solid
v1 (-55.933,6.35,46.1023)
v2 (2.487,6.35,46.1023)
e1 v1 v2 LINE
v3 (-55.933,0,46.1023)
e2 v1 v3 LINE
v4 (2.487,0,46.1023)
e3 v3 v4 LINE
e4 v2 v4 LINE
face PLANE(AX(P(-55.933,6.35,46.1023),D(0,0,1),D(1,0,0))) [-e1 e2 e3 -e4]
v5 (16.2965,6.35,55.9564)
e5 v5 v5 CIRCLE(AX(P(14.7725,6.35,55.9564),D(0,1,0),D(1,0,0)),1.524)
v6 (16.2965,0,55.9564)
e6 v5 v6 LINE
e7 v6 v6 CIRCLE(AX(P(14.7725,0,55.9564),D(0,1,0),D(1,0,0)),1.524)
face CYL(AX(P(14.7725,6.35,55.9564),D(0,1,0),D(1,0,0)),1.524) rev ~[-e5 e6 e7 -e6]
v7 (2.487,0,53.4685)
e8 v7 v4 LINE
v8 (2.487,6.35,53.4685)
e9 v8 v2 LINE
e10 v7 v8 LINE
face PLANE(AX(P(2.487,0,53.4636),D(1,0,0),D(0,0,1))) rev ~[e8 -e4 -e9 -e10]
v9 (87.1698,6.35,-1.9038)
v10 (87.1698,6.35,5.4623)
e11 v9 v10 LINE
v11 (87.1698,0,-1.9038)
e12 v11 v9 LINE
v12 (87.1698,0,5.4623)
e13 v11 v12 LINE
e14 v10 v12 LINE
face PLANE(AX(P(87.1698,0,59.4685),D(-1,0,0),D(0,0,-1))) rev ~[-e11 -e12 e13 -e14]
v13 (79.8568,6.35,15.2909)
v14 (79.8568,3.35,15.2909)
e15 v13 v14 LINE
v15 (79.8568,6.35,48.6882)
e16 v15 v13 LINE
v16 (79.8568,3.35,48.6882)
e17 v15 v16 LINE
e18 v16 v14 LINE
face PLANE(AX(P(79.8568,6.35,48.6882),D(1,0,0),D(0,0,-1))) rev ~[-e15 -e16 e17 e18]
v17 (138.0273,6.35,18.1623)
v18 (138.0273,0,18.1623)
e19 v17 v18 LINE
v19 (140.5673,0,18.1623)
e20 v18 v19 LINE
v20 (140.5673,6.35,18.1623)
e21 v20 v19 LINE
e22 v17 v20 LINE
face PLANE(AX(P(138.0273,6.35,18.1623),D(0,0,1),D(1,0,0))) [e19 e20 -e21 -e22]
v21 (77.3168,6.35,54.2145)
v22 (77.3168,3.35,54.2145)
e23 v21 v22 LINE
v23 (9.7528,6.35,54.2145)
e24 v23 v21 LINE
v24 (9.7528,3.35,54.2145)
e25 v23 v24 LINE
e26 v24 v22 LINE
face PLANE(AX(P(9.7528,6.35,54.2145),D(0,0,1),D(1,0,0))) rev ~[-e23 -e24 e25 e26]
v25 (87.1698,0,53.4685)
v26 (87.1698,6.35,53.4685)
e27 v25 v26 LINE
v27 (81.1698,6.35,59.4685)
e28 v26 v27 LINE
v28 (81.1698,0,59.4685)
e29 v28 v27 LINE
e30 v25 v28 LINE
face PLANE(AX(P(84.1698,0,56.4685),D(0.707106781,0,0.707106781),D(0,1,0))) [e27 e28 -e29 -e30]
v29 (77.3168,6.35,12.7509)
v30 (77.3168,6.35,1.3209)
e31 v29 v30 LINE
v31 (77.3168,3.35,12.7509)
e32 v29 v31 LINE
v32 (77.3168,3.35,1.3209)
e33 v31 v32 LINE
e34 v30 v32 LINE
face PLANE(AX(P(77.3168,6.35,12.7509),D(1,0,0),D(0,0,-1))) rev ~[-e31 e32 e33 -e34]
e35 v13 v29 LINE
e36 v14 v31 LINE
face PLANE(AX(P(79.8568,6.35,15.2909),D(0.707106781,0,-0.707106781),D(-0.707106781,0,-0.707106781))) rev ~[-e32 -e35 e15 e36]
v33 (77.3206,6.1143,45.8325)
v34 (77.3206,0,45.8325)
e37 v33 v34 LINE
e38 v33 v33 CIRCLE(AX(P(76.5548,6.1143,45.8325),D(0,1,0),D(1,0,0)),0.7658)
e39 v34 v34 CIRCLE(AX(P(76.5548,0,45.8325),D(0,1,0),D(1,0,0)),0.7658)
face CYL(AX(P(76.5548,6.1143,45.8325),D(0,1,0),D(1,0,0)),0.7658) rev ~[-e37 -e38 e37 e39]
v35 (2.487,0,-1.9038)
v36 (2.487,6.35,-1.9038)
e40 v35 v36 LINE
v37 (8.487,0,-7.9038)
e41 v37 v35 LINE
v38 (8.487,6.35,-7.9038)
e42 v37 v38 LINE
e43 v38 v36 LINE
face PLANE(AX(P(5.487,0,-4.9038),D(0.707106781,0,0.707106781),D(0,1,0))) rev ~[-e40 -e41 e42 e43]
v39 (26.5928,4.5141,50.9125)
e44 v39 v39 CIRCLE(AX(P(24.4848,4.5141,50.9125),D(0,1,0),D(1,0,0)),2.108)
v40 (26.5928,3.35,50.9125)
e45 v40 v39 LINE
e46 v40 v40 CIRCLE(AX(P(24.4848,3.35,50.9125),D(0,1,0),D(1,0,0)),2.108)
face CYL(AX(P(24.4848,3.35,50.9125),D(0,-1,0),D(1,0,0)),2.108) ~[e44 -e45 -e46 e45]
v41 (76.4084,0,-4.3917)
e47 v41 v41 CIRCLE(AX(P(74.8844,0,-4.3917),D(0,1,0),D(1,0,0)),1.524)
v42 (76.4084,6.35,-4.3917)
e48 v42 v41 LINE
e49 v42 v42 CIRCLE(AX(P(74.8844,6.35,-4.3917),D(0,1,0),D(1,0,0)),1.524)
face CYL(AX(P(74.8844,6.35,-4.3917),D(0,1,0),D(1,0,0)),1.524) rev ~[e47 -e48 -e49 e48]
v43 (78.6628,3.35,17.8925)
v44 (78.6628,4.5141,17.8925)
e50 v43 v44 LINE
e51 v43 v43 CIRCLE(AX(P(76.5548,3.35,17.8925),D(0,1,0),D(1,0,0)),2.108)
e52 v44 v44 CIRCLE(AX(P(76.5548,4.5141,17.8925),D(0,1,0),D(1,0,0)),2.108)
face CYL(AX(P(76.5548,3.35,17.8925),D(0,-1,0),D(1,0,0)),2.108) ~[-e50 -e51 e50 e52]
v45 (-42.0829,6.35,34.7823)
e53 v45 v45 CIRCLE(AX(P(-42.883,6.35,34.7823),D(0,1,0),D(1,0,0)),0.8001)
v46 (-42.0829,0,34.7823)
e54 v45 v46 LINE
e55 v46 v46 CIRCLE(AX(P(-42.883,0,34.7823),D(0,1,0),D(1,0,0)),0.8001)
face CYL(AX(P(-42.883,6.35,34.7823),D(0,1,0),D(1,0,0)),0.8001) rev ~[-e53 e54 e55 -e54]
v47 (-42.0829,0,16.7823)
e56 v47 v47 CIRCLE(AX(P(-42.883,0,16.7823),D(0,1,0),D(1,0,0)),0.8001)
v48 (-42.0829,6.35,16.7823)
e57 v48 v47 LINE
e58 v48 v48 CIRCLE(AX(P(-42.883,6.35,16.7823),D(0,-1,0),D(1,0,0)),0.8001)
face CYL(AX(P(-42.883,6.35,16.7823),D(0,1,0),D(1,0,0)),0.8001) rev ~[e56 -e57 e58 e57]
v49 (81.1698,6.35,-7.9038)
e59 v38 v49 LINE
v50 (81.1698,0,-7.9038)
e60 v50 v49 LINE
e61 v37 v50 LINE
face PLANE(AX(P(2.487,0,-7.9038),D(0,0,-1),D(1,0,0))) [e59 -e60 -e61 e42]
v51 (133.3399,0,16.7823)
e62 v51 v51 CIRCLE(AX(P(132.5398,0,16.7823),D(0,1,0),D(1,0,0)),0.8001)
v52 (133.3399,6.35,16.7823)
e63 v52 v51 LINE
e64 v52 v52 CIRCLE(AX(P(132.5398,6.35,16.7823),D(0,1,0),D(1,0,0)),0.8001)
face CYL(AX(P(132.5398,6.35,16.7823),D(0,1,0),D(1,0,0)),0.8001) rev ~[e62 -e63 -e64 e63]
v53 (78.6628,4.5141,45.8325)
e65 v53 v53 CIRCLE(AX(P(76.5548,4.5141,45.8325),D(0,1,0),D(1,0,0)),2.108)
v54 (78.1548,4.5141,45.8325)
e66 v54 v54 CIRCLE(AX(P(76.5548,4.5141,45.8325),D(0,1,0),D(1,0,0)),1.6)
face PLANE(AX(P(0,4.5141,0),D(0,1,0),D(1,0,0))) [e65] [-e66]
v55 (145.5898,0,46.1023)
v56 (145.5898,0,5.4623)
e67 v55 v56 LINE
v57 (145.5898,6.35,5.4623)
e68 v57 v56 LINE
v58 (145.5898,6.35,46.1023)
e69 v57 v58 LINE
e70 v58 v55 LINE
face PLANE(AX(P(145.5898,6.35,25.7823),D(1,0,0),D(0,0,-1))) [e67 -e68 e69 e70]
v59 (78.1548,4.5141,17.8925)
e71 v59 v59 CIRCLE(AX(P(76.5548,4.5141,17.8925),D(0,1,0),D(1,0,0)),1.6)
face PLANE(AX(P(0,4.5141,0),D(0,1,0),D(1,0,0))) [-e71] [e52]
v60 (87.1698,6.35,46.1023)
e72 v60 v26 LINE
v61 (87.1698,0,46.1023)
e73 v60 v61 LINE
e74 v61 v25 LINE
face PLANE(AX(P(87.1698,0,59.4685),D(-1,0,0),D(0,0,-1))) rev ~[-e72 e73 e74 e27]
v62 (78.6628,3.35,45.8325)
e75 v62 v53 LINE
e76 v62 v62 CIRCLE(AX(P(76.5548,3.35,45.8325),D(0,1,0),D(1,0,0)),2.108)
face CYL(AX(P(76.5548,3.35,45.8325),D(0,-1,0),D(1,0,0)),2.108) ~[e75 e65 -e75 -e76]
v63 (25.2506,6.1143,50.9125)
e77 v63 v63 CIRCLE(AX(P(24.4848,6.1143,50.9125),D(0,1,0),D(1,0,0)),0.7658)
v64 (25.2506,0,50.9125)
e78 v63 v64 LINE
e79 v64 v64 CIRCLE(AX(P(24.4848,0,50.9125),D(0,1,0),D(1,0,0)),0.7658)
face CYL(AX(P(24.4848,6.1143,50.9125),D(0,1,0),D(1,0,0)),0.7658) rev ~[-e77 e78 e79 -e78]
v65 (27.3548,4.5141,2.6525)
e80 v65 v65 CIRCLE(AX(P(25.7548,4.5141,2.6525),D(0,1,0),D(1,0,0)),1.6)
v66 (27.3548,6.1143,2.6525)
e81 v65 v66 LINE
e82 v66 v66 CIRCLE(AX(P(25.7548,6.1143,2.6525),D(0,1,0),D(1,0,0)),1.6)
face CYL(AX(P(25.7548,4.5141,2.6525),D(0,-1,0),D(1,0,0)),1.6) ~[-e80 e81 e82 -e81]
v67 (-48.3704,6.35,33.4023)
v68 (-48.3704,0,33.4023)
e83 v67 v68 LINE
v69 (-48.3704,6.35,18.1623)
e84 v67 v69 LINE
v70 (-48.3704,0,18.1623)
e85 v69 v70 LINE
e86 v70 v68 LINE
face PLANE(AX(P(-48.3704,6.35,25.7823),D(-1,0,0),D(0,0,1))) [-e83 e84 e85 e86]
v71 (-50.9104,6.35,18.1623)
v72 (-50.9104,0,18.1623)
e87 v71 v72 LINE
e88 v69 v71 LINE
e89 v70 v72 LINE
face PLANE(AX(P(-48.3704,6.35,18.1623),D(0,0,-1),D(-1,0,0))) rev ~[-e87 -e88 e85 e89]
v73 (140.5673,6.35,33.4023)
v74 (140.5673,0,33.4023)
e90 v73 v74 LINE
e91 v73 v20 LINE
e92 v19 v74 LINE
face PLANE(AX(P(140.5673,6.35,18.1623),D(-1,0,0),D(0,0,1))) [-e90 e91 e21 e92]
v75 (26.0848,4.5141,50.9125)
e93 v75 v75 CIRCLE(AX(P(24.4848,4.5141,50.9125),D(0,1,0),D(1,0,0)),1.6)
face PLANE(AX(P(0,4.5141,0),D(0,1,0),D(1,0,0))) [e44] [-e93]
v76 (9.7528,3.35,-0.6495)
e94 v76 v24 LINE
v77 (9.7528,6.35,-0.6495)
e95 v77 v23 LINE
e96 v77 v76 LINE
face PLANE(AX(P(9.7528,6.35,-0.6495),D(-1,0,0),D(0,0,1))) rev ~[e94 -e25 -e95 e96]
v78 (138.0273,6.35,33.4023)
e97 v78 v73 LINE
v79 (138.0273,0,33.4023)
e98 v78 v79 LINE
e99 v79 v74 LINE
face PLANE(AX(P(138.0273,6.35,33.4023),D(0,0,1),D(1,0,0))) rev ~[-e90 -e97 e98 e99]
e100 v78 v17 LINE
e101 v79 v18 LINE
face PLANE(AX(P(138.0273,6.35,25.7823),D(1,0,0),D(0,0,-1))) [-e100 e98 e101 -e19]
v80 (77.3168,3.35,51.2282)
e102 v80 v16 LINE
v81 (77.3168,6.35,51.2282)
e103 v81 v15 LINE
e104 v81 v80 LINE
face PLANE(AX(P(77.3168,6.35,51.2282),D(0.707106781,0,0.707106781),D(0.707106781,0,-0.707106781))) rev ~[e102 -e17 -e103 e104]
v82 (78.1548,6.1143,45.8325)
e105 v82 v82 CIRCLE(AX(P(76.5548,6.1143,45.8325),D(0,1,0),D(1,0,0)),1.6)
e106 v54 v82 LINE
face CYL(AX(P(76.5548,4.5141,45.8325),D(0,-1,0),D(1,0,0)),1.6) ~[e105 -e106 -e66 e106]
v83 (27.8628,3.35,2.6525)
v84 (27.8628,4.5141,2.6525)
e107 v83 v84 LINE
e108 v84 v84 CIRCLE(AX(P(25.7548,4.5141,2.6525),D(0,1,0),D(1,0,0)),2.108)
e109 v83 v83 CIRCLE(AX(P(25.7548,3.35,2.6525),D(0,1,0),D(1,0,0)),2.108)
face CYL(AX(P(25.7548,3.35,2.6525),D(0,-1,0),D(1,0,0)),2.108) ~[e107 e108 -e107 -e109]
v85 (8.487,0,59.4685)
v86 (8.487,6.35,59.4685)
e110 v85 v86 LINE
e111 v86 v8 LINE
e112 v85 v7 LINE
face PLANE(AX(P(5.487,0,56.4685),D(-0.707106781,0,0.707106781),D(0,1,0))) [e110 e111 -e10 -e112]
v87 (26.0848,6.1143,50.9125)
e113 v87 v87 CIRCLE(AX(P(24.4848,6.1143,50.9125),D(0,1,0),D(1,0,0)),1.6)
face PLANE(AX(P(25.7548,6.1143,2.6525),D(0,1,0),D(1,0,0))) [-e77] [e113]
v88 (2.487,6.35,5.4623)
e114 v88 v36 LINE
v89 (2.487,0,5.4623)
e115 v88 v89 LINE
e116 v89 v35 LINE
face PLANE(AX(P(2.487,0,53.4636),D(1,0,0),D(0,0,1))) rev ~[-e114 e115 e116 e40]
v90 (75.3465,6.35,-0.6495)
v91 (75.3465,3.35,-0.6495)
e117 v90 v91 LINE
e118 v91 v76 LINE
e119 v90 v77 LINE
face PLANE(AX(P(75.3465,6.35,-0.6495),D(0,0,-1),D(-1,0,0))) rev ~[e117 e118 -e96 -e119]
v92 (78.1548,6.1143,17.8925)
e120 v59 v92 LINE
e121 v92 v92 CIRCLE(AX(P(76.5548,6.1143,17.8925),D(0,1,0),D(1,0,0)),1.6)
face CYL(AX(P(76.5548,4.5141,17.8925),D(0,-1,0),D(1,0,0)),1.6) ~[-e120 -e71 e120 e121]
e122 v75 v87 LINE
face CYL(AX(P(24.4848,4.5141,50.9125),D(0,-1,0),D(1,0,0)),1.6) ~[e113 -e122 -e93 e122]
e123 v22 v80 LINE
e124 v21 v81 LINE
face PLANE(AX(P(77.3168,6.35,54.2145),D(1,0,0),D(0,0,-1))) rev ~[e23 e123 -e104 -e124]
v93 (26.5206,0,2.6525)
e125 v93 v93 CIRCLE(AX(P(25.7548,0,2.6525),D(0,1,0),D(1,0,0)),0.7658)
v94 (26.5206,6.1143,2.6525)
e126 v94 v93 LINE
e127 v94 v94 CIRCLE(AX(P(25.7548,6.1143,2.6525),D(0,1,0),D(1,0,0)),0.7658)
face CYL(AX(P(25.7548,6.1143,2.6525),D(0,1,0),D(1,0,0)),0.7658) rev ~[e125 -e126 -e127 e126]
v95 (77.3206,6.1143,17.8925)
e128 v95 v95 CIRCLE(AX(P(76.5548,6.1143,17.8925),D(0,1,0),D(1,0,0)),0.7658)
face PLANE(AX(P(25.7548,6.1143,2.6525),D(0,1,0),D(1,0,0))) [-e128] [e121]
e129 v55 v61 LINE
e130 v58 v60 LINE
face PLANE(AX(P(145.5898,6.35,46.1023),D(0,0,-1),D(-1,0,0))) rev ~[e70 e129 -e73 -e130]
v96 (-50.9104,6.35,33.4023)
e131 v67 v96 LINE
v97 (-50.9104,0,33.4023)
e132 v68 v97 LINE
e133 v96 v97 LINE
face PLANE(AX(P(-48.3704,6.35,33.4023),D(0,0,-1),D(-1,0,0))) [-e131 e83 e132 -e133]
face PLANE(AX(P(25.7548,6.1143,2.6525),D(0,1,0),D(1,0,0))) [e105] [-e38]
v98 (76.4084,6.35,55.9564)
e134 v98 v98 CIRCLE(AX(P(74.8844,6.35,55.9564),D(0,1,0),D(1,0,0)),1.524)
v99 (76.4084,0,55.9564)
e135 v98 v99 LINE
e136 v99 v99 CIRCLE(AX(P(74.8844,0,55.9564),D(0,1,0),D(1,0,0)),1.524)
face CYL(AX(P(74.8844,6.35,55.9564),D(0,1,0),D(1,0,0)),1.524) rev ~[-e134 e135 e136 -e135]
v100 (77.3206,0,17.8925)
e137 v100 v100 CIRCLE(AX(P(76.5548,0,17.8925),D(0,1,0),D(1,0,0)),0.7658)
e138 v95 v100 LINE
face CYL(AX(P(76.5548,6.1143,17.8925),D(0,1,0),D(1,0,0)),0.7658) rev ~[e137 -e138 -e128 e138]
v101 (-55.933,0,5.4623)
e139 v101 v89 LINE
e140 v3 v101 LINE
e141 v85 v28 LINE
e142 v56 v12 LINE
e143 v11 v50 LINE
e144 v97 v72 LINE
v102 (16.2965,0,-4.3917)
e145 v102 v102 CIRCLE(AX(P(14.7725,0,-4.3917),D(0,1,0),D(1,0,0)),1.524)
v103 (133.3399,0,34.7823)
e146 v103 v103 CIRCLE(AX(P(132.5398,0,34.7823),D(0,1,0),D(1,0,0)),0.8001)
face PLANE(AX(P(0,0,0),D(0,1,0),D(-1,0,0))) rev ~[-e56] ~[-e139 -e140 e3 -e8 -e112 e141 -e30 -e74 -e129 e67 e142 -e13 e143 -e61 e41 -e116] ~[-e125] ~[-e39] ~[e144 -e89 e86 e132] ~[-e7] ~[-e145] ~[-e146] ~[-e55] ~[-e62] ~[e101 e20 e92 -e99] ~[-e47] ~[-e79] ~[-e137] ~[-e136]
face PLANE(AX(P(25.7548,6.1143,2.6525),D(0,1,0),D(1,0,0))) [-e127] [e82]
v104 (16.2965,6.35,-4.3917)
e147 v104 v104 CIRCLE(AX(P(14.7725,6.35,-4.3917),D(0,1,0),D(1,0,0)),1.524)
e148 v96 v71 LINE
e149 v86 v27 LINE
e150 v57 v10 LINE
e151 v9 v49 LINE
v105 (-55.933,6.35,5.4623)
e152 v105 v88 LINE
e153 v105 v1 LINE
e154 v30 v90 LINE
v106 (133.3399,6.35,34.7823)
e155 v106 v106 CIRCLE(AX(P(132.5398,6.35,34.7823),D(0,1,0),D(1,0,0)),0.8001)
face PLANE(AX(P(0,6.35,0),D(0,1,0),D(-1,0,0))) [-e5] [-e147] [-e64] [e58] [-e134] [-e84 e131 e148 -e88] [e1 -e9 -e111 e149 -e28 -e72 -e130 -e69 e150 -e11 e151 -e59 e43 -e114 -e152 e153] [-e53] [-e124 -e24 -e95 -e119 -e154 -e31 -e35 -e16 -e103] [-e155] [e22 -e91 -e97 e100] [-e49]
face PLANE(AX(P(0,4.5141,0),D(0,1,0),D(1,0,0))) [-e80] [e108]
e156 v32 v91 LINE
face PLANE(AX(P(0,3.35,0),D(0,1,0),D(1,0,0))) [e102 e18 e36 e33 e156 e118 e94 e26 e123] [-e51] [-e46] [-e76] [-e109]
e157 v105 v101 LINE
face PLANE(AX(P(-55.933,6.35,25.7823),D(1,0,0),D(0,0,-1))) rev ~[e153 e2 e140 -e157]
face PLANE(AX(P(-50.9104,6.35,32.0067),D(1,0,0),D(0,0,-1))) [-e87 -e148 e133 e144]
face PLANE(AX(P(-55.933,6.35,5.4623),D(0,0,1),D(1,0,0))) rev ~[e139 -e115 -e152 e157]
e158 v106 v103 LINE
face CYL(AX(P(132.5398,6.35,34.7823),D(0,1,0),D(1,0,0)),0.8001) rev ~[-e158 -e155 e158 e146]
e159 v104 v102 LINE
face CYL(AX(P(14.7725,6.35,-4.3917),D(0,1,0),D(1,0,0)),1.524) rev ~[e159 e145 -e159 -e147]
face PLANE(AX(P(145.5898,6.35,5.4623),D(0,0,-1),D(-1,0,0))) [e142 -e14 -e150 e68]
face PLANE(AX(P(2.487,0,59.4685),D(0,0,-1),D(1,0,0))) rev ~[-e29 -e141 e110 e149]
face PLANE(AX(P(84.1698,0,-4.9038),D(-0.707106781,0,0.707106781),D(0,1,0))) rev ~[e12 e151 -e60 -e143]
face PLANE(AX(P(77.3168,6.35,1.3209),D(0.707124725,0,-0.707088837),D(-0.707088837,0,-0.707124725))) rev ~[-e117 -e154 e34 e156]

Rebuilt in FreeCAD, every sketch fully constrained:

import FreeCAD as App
import Part
import Sketcher
Q = App.Units.Quantity


def edges_at(feature, points):
    """Names of the edges that pass closest to the given points."""
    edges = feature.Shape.Edges
    near = lambda p: min(range(len(edges)), key=lambda i: edges[i].distToShape(Part.Vertex(*p))[0])
    return sorted({f"Edge{near(p) + 1}" for p in points})


def add_polygon(sketch, points):
    """Adds a closed chain of lines whose ends are joined by coincident constraints."""
    first, n = sketch.GeometryCount, len(points)
    for a, b in zip(points, points[1:] + points[:1]):
        sketch.addGeometry(Part.LineSegment(App.Vector(*a, 0), App.Vector(*b, 0)), False)
    for i in range(n):
        sketch.addConstraint(Sketcher.Constraint("Coincident", first + i, 2, first + (i + 1) % n, 1))

doc = App.newDocument("Part")
body = doc.addObject("PartDesign::Body", "Body")

# Sketch on XZ plane
sketch1 = doc.addObject("Sketcher::SketchObject", "Sketch")
body.addObject(sketch1)
sketch1.AttachmentSupport = (doc.XZ_Plane, [""])
sketch1.MapMode = "FlatFace"
add_polygon(sketch1, [(87, 59), (87, -8), (2, -8), (2, 59)])  # lines 0-3
sketch1.addConstraint(Sketcher.Constraint("Vertical", 0))
sketch1.addConstraint(Sketcher.Constraint("Horizontal", 1))
sketch1.addConstraint(Sketcher.Constraint("Vertical", 2))
sketch1.addConstraint(Sketcher.Constraint("Horizontal", 3))
sketch1.addConstraint(Sketcher.Constraint("DistanceX", 1, 2, 1, 1, Q("84.6828 mm")))
sketch1.addConstraint(Sketcher.Constraint("DistanceY", 0, 2, 0, 1, Q("67.3723 mm")))
sketch1.addConstraint(Sketcher.Constraint("DistanceX", -1, 1, 0, 2, Q("87.1698 mm")))
sketch1.addConstraint(Sketcher.Constraint("DistanceY", 0, 2, -1, 1, Q("7.9038 mm")))
pad1 = doc.addObject("PartDesign::Pad", "Pad")
body.addObject(pad1)
pad1.Profile = sketch1
pad1.Length = Q("0.25 in")
pad1.Reversed = True

# Sketch on XZ plane
sketch2 = doc.addObject("Sketcher::SketchObject", "Sketch001")
body.addObject(sketch2)
sketch2.AttachmentSupport = (doc.XZ_Plane, [""])
sketch2.MapMode = "FlatFace"
sketch2.AttachmentOffset = App.Placement(App.Vector(0, 0, -0.25 * 25.4), App.Rotation())
add_polygon(sketch2, [(79.9, 15.3), (77.3, 12.8), (77.3, 1.3), (75.3, -0.6), (9.8, -0.6), (9.8, 54.2), (77.3, 54.2), (77.3, 51.2), (79.9, 48.7)])  # lines 0-8
sketch2.addConstraint(Sketcher.Constraint("Vertical", 1))
sketch2.addConstraint(Sketcher.Constraint("Horizontal", 3))
sketch2.addConstraint(Sketcher.Constraint("Vertical", 4))
sketch2.addConstraint(Sketcher.Constraint("Horizontal", 5))
sketch2.addConstraint(Sketcher.Constraint("Vertical", 6))
sketch2.addConstraint(Sketcher.Constraint("Vertical", 8))
sketch2.addConstraint(Sketcher.Constraint("Parallel", 0, 2))
sketch2.addConstraint(Sketcher.Constraint("Perpendicular", 2, 7))
sketch2.addConstraint(Sketcher.Constraint("Vertical", 1, 2, 5, 2))
sketch2.addConstraint(Sketcher.Constraint("Equal", 0, 7))
sketch2.addConstraint(Sketcher.Constraint("DistanceX", 5, 1, 5, 2, Q("2.66 in")))
sketch2.addConstraint(Sketcher.Constraint("DistanceY", 1, 2, 1, 1, Q("0.45 in")))
sketch2.addConstraint(Sketcher.Constraint("DistanceY", 4, 1, 4, 2, Q("2.16 in")))
sketch2.addConstraint(Sketcher.Constraint("DistanceX", 6, 2, 7, 2, Q("0.1 in")))
sketch2.addConstraint(Sketcher.Constraint("DistanceY", -1, 1, 0, 2, Q("0.502 in")))
sketch2.addConstraint(Sketcher.Constraint("Distance", 2, Q("0.1097 in")))
sketch2.addConstraint(Sketcher.Constraint("DistanceY", 6, 2, 6, 1, Q("2.9863 mm")))
sketch2.addConstraint(Sketcher.Constraint("DistanceX", -1, 1, 2, 2, Q("2.9664 in")))
pocket1 = doc.addObject("PartDesign::Pocket", "Pocket")
body.addObject(pocket1)
pocket1.Profile = sketch2
pocket1.Length = Q("0.1181102 in")
pocket1.Reversed = True

# Sketch on XZ plane
sketch3 = doc.addObject("Sketcher::SketchObject", "Sketch002")
body.addObject(sketch3)
sketch3.AttachmentSupport = (doc.XZ_Plane, [""])
sketch3.MapMode = "FlatFace"
sketch3.AttachmentOffset = App.Placement(App.Vector(0, 0, -0.1318898 * 25.4), App.Rotation())
sketch3.addGeometry(Part.Circle(App.Vector(25.8, 2.7, 0), App.Vector(0, 0, 1), 2.1), False)
sketch3.addGeometry(Part.Circle(App.Vector(76.6, 17.9, 0), App.Vector(0, 0, 1), 2.1), False)
sketch3.addGeometry(Part.Circle(App.Vector(76.6, 45.8, 0), App.Vector(0, 0, 1), 2.1), False)
sketch3.addGeometry(Part.Circle(App.Vector(24.5, 50.9, 0), App.Vector(0, 0, 1), 2.1), False)
sketch3.addConstraint(Sketcher.Constraint("Equal", 0, 1))
sketch3.addConstraint(Sketcher.Constraint("Equal", 1, 2))
sketch3.addConstraint(Sketcher.Constraint("Equal", 2, 3))
sketch3.addConstraint(Sketcher.Constraint("Vertical", 1, 3, 2, 3))
sketch3.addConstraint(Sketcher.Constraint("DistanceX", 0, 3, 1, 3, Q("2 in")))
sketch3.addConstraint(Sketcher.Constraint("DistanceY", 0, 3, 1, 3, Q("0.6 in")))
sketch3.addConstraint(Sketcher.Constraint("DistanceY", 1, 3, 2, 3, Q("1.1 in")))
sketch3.addConstraint(Sketcher.Constraint("DistanceY", 0, 3, 3, 3, Q("1.9 in")))
sketch3.addConstraint(Sketcher.Constraint("Diameter", 0, Q("4.216 mm")))
sketch3.addConstraint(Sketcher.Constraint("DistanceX", 3, 3, 0, 3, Q("0.05 in")))
sketch3.addConstraint(Sketcher.Constraint("DistanceX", -1, 1, 0, 3, Q("25.7548 mm")))
sketch3.addConstraint(Sketcher.Constraint("DistanceY", -1, 1, 0, 3, Q("2.6525 mm")))
pad2 = doc.addObject("PartDesign::Pad", "Pad001")
body.addObject(pad2)
pad2.Profile = sketch3
pad2.Length = 1.1641
pad2.Reversed = True

# Sketch on XZ plane
sketch4 = doc.addObject("Sketcher::SketchObject", "Sketch003")
body.addObject(sketch4)
sketch4.AttachmentSupport = (doc.XZ_Plane, [""])
sketch4.MapMode = "FlatFace"
sketch4.AttachmentOffset = App.Placement(App.Vector(0, 0, -4.5141), App.Rotation())
sketch4.addGeometry(Part.Circle(App.Vector(25.8, 2.7, 0), App.Vector(0, 0, 1), 1.6), False)
sketch4.addGeometry(Part.Circle(App.Vector(24.5, 50.9, 0), App.Vector(0, 0, 1), 1.6), False)
sketch4.addGeometry(Part.Circle(App.Vector(76.6, 17.9, 0), App.Vector(0, 0, 1), 1.6), False)
sketch4.addGeometry(Part.Circle(App.Vector(76.6, 45.8, 0), App.Vector(0, 0, 1), 1.6), False)
sketch4.addConstraint(Sketcher.Constraint("Equal", 0, 1))
sketch4.addConstraint(Sketcher.Constraint("Equal", 1, 2))
sketch4.addConstraint(Sketcher.Constraint("Equal", 2, 3))
sketch4.addConstraint(Sketcher.Constraint("Vertical", 2, 3, 3, 3))
sketch4.addConstraint(Sketcher.Constraint("Diameter", 0, Q("3.2 mm")))
sketch4.addConstraint(Sketcher.Constraint("DistanceX", 0, 3, 2, 3, Q("2 in")))
sketch4.addConstraint(Sketcher.Constraint("DistanceY", 0, 3, 1, 3, Q("1.9 in")))
sketch4.addConstraint(Sketcher.Constraint("DistanceY", 0, 3, 2, 3, Q("0.6 in")))
sketch4.addConstraint(Sketcher.Constraint("DistanceY", 2, 3, 3, 3, Q("1.1 in")))
sketch4.addConstraint(Sketcher.Constraint("DistanceX", 1, 3, 0, 3, Q("0.05 in")))
sketch4.addConstraint(Sketcher.Constraint("DistanceX", -1, 1, 0, 3, Q("25.7548 mm")))
sketch4.addConstraint(Sketcher.Constraint("DistanceY", -1, 1, 0, 3, Q("2.6525 mm")))
pad3 = doc.addObject("PartDesign::Pad", "Pad002")
body.addObject(pad3)
pad3.Profile = sketch4
pad3.Length = Q("0.063 in")
pad3.Reversed = True

# Sketch on XZ plane
sketch5 = doc.addObject("Sketcher::SketchObject", "Sketch004")
body.addObject(sketch5)
sketch5.AttachmentSupport = (doc.XZ_Plane, [""])
sketch5.MapMode = "FlatFace"
sketch5.AttachmentOffset = App.Placement(App.Vector(0, 0, -6.1143), App.Rotation())
sketch5.addGeometry(Part.Circle(App.Vector(25.8, 2.7, 0), App.Vector(0, 0, 1), 0.8), False)
sketch5.addGeometry(Part.Circle(App.Vector(76.6, 17.9, 0), App.Vector(0, 0, 1), 0.8), False)
sketch5.addGeometry(Part.Circle(App.Vector(76.6, 45.8, 0), App.Vector(0, 0, 1), 0.8), False)
sketch5.addGeometry(Part.Circle(App.Vector(24.5, 50.9, 0), App.Vector(0, 0, 1), 0.8), False)
sketch5.addConstraint(Sketcher.Constraint("Equal", 0, 1))
sketch5.addConstraint(Sketcher.Constraint("Equal", 1, 2))
sketch5.addConstraint(Sketcher.Constraint("Equal", 2, 3))
sketch5.addConstraint(Sketcher.Constraint("Vertical", 1, 3, 2, 3))
sketch5.addConstraint(Sketcher.Constraint("Diameter", 0, Q("0.0603 in")))
sketch5.addConstraint(Sketcher.Constraint("DistanceX", 0, 3, 1, 3, Q("2 in")))
sketch5.addConstraint(Sketcher.Constraint("DistanceY", 0, 3, 1, 3, Q("0.6 in")))
sketch5.addConstraint(Sketcher.Constraint("DistanceY", 1, 3, 2, 3, Q("1.1 in")))
sketch5.addConstraint(Sketcher.Constraint("DistanceY", 0, 3, 3, 3, Q("1.9 in")))
sketch5.addConstraint(Sketcher.Constraint("DistanceX", 3, 3, 0, 3, Q("0.05 in")))
sketch5.addConstraint(Sketcher.Constraint("DistanceX", -1, 1, 0, 3, Q("25.7548 mm")))
sketch5.addConstraint(Sketcher.Constraint("DistanceY", -1, 1, 0, 3, Q("2.6525 mm")))
pocket2 = doc.addObject("PartDesign::Pocket", "Pocket001")
body.addObject(pocket2)
pocket2.Profile = sketch5
pocket2.Length = Q("0.59 in")
pocket2.Reversed = True

# Sketch on XZ plane
sketch6 = doc.addObject("Sketcher::SketchObject", "Sketch005")
body.addObject(sketch6)
sketch6.AttachmentSupport = (doc.XZ_Plane, [""])
sketch6.MapMode = "FlatFace"
sketch6.AttachmentOffset = App.Placement(App.Vector(0, 0, -0.25 * 25.4), App.Rotation())
add_polygon(sketch6, [(146, 5), (87, 5), (87, 46), (146, 46)])  # lines 0-3
add_polygon(sketch6, [(2, 5), (-56, 5), (-56, 46), (2, 46)])  # lines 4-7
sketch6.addConstraint(Sketcher.Constraint("Horizontal", 0))
sketch6.addConstraint(Sketcher.Constraint("Vertical", 1))
sketch6.addConstraint(Sketcher.Constraint("Horizontal", 2))
sketch6.addConstraint(Sketcher.Constraint("Vertical", 3))
sketch6.addConstraint(Sketcher.Constraint("Horizontal", 4))
sketch6.addConstraint(Sketcher.Constraint("Vertical", 5))
sketch6.addConstraint(Sketcher.Constraint("Horizontal", 6))
sketch6.addConstraint(Sketcher.Constraint("Vertical", 7))
sketch6.addConstraint(Sketcher.Constraint("Horizontal", 3, 2, 4, 2))
sketch6.addConstraint(Sketcher.Constraint("Horizontal", 2, 2, 5, 2))
sketch6.addConstraint(Sketcher.Constraint("Equal", 2, 4))
sketch6.addConstraint(Sketcher.Constraint("DistanceX", 0, 2, 0, 1, Q("2.3 in")))
sketch6.addConstraint(Sketcher.Constraint("DistanceY", 1, 1, 1, 2, Q("1.6 in")))
sketch6.addConstraint(Sketcher.Constraint("DistanceX", -1, 1, 0, 2, Q("87.1698 mm")))
sketch6.addConstraint(Sketcher.Constraint("DistanceY", -1, 1, 0, 2, Q("5.4623 mm")))
sketch6.addConstraint(Sketcher.Constraint("DistanceX", 4, 2, -1, 1, Q("55.933 mm")))
pad4 = doc.addObject("PartDesign::Pad", "Pad003")
body.addObject(pad4)
pad4.Profile = sketch6
pad4.Length = Q("0.25 in")

# Sketch on XZ plane
sketch7 = doc.addObject("Sketcher::SketchObject", "Sketch006")
body.addObject(sketch7)
sketch7.AttachmentSupport = (doc.XZ_Plane, [""])
sketch7.MapMode = "FlatFace"
sketch7.AttachmentOffset = App.Placement(App.Vector(0, 0, -0.25 * 25.4), App.Rotation())
sketch7.addGeometry(Part.Circle(App.Vector(14.8, -4.4, 0), App.Vector(0, 0, 1), 1.5), False)
sketch7.addGeometry(Part.Circle(App.Vector(74.9, -4.4, 0), App.Vector(0, 0, 1), 1.5), False)
sketch7.addGeometry(Part.Circle(App.Vector(14.8, 56, 0), App.Vector(0, 0, 1), 1.5), False)
sketch7.addGeometry(Part.Circle(App.Vector(74.9, 56, 0), App.Vector(0, 0, 1), 1.5), False)
sketch7.addConstraint(Sketcher.Constraint("Equal", 0, 1))
sketch7.addConstraint(Sketcher.Constraint("Equal", 1, 2))
sketch7.addConstraint(Sketcher.Constraint("Equal", 2, 3))
sketch7.addConstraint(Sketcher.Constraint("Horizontal", 0, 3, 1, 3))
sketch7.addConstraint(Sketcher.Constraint("Horizontal", 2, 3, 3, 3))
sketch7.addConstraint(Sketcher.Constraint("Vertical", 0, 3, 2, 3))
sketch7.addConstraint(Sketcher.Constraint("Vertical", 1, 3, 3, 3))
sketch7.addConstraint(Sketcher.Constraint("Diameter", 0, Q("0.12 in")))
sketch7.addConstraint(Sketcher.Constraint("DistanceY", -1, 1, 2, 3, Q("2.203 in")))
sketch7.addConstraint(Sketcher.Constraint("DistanceX", -1, 1, 0, 3, Q("0.5816 in")))
sketch7.addConstraint(Sketcher.Constraint("DistanceY", 0, 3, -1, 1, Q("0.1729 in")))
sketch7.addConstraint(Sketcher.Constraint("DistanceX", -1, 1, 1, 3, Q("2.9482 in")))
pocket3 = doc.addObject("PartDesign::Pocket", "Pocket002")
body.addObject(pocket3)
pocket3.Profile = sketch7
pocket3.Length = Q("0.39 in")
pocket3.Reversed = True

# Sketch on XZ plane
sketch8 = doc.addObject("Sketcher::SketchObject", "Sketch007")
body.addObject(sketch8)
sketch8.AttachmentSupport = (doc.XZ_Plane, [""])
sketch8.MapMode = "FlatFace"
sketch8.AttachmentOffset = App.Placement(App.Vector(0, 0, -0.25 * 25.4), App.Rotation())
add_polygon(sketch8, [(138, 18.2), (138, 33.4), (140.6, 33.4), (140.6, 18.2)])  # lines 0-3
add_polygon(sketch8, [(-50.9, 33.4), (-48.4, 33.4), (-48.4, 18.2), (-50.9, 18.2)])  # lines 4-7
sketch8.addGeometry(Part.Circle(App.Vector(-42.9, 16.8, 0), App.Vector(0, 0, 1), 0.8), False)  # 8
sketch8.addGeometry(Part.Circle(App.Vector(-42.9, 34.8, 0), App.Vector(0, 0, 1), 0.8), False)  # 9
sketch8.addGeometry(Part.Circle(App.Vector(132.5, 16.8, 0), App.Vector(0, 0, 1), 0.8), False)  # 10
sketch8.addGeometry(Part.Circle(App.Vector(132.5, 34.8, 0), App.Vector(0, 0, 1), 0.8), False)  # 11
sketch8.addConstraint(Sketcher.Constraint("Vertical", 0))
sketch8.addConstraint(Sketcher.Constraint("Horizontal", 1))
sketch8.addConstraint(Sketcher.Constraint("Vertical", 2))
sketch8.addConstraint(Sketcher.Constraint("Horizontal", 3))
sketch8.addConstraint(Sketcher.Constraint("Horizontal", 4))
sketch8.addConstraint(Sketcher.Constraint("Vertical", 5))
sketch8.addConstraint(Sketcher.Constraint("Horizontal", 6))
sketch8.addConstraint(Sketcher.Constraint("Vertical", 7))
sketch8.addConstraint(Sketcher.Constraint("Equal", 8, 9))
sketch8.addConstraint(Sketcher.Constraint("Equal", 9, 10))
sketch8.addConstraint(Sketcher.Constraint("Equal", 10, 11))
sketch8.addConstraint(Sketcher.Constraint("Horizontal", 8, 3, 10, 3))
sketch8.addConstraint(Sketcher.Constraint("Horizontal", 9, 3, 11, 3))
sketch8.addConstraint(Sketcher.Constraint("Horizontal", 1, 2, 4, 2))
sketch8.addConstraint(Sketcher.Constraint("Horizontal", 3, 2, 5, 2))
sketch8.addConstraint(Sketcher.Constraint("Vertical", 8, 3, 9, 3))
sketch8.addConstraint(Sketcher.Constraint("Vertical", 10, 3, 11, 3))
sketch8.addConstraint(Sketcher.Constraint("Equal", 3, 4))
sketch8.addConstraint(Sketcher.Constraint("Diameter", 8, Q("0.063 in")))
sketch8.addConstraint(Sketcher.Constraint("DistanceX", 1, 1, 1, 2, Q("0.1 in")))
sketch8.addConstraint(Sketcher.Constraint("DistanceY", 0, 1, 0, 2, Q("0.6 in")))
sketch8.addConstraint(Sketcher.Constraint("DistanceX", 8, 3, -1, 1, Q("1.6883 in")))
sketch8.addConstraint(Sketcher.Constraint("DistanceX", -1, 1, 10, 3, Q("5.2181 in")))
sketch8.addConstraint(Sketcher.Constraint("DistanceX", 4, 2, 0, 2, Q("7.3385 in")))
sketch8.addConstraint(Sketcher.Constraint("DistanceY", -1, 1, 8, 3, Q("16.7823 mm")))
sketch8.addConstraint(Sketcher.Constraint("DistanceY", -1, 1, 9, 3, Q("34.7823 mm")))
sketch8.addConstraint(Sketcher.Constraint("DistanceX", -1, 1, 0, 2, Q("138.0273 mm")))
sketch8.addConstraint(Sketcher.Constraint("DistanceY", -1, 1, 0, 2, Q("33.4023 mm")))
pocket4 = doc.addObject("PartDesign::Pocket", "Pocket003")
body.addObject(pocket4)
pocket4.Profile = sketch8
pocket4.Length = Q("1 in")
pocket4.Reversed = True
doc.recompute()

chamfer = doc.addObject("PartDesign::Chamfer", "Chamfer")
body.addObject(chamfer)
chamfer.Base = (pocket4, edges_at(pocket4, [
    (87.17, 3.175, -7.904),
    (87.17, 3.175, 59.468),
    (2.487, 3.175, 59.468),
    (2.487, 3.175, -7.904),
]))
chamfer.Size = 6

doc.recompute()
